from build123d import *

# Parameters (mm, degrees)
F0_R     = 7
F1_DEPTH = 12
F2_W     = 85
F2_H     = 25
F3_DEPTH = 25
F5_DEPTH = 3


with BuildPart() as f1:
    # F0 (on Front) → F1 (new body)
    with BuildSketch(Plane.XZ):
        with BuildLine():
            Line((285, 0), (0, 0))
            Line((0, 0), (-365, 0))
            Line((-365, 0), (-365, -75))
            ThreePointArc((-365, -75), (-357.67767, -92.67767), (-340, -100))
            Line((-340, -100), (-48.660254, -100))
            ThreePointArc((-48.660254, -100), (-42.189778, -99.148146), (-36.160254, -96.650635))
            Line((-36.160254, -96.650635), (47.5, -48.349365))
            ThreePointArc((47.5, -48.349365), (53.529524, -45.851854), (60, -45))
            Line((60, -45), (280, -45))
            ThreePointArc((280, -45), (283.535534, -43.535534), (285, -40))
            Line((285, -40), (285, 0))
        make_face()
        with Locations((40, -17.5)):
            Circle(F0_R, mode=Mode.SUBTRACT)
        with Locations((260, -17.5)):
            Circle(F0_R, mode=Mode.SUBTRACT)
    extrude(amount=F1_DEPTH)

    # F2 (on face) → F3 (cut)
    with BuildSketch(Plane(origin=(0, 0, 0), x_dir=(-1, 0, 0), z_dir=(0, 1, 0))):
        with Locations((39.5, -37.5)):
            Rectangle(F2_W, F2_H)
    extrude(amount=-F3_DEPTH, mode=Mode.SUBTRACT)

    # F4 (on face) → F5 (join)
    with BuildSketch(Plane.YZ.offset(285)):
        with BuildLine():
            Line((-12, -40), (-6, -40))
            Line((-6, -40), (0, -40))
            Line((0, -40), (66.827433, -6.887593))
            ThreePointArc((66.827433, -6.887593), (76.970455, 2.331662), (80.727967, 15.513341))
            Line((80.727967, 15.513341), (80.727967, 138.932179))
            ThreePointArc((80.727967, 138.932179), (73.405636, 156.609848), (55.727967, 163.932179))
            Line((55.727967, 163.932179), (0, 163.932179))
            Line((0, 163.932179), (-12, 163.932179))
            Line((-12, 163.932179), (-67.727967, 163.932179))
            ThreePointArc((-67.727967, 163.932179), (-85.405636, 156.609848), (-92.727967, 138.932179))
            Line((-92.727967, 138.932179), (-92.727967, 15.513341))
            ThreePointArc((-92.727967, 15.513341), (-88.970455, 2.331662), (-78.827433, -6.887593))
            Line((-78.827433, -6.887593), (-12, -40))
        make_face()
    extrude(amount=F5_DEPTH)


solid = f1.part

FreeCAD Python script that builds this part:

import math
import FreeCAD as App
import Part
import Sketcher
from FreeCAD import Vector
Q = App.Units.Quantity


def add_polygon(sketch, points):
    """Adds a closed chain of lines whose ends are joined by coincident constraints."""
    first, n = sketch.GeometryCount, len(points)
    for a, b in zip(points, points[1:] + points[:1]):
        sketch.addGeometry(Part.LineSegment(App.Vector(*a, 0), App.Vector(*b, 0)), False)
    for i in range(n):
        sketch.addConstraint(Sketcher.Constraint("Coincident", first + i, 2, first + (i + 1) % n, 1))

doc = App.newDocument("Part")
body = doc.addObject("PartDesign::Body", "Body")

sketch1 = body.newObject("Sketcher::SketchObject", "Sketch")
sketch1.AttachmentSupport = (doc.getObject("XZ_Plane"), [""])
sketch1.MapMode = "FlatFace"
sketch1.addGeometry([
    Part.LineSegment(Vector(285, 0, 0), Vector(-365, 0, 0)),
    Part.LineSegment(Vector(-365, 0, 0), Vector(-365, -75, 0)),
    Part.ArcOfCircle(Part.Circle(Vector(-340.000002, -75.000002, 0), Vector(0, 0, 1), 24.999998), math.radians(179.999996), math.radians(270.000004)),
    Part.LineSegment(Vector(-340, -100, 0), Vector(-48.660254, -100, 0)),
    Part.ArcOfCircle(Part.Circle(Vector(-48.660252, -75.00001, 0), Vector(0, 0, 1), 24.99999), math.radians(-90.000006), math.radians(-59.999994)),
    Part.LineSegment(Vector(-36.160254, -96.650635, 0), Vector(47.5, -48.349365, 0)),
    Part.ArcOfCircle(Part.Circle(Vector(59.999998, -69.99999, 0), Vector(0, 0, 1), 24.99999), math.radians(89.999994), math.radians(120.000006)),
    Part.LineSegment(Vector(60, -45, 0), Vector(280, -45, 0)),
    Part.ArcOfCircle(Part.Circle(Vector(280, -40, 0), Vector(0, 0, 1), 5), math.radians(-90.000004), math.radians(0.000004)),
    Part.LineSegment(Vector(285, -40, 0), Vector(285, 0, 0)),
    Part.Circle(Vector(40, -17.5, 0), Vector(0, 0, 1), 7),
    Part.Circle(Vector(260, -17.5, 0), Vector(0, 0, 1), 7),
], False)
sketch1.addConstraint([
    Sketcher.Constraint("Coincident", 0, 2, 1, 1),
    Sketcher.Constraint("Tangent", 1, 2, 2, 1),
    Sketcher.Constraint("Tangent", 2, 2, 3, 1),
    Sketcher.Constraint("Tangent", 3, 2, 4, 1),
    Sketcher.Constraint("Tangent", 4, 2, 5, 1),
    Sketcher.Constraint("Tangent", 5, 2, 6, 2),
    Sketcher.Constraint("Tangent", 6, 1, 7, 1),
    Sketcher.Constraint("Tangent", 7, 2, 8, 1),
    Sketcher.Constraint("Tangent", 8, 2, 9, 1),
    Sketcher.Constraint("Coincident", 9, 2, 0, 1),
    Sketcher.Constraint("Horizontal", 0),
    Sketcher.Constraint("Vertical", 1),
    Sketcher.Constraint("Horizontal", 3),
    Sketcher.Constraint("Horizontal", 7),
    Sketcher.Constraint("Vertical", 9),
    Sketcher.Constraint("Equal", 4, 6),
    Sketcher.Constraint("Equal", 10, 11),
    Sketcher.Constraint("PointOnObject", 0, 2, -1),
    Sketcher.Constraint("Horizontal", 10, 3, 11, 3),
    Sketcher.Constraint("Diameter", 10, 14.0),
    Sketcher.Constraint("Radius", 2, 24.999998),
    Sketcher.Constraint("Radius", 8, 5.0),
    Sketcher.Constraint("DistanceX", 0, 2, 0, 1, 650.0),
    Sketcher.Constraint("DistanceX", 7, 1, 7, 2, 220.0),
    Sketcher.Constraint("DistanceY", 1, 2, 1, 1, 75.0),
    Sketcher.Constraint("DistanceY", 9, 1, 9, 2, 40.0),
    Sketcher.Constraint("Angle", 5, Q("30 deg")),
    Sketcher.Constraint("DistanceX", 2, 3, -1, 1, 340.000002),
    Sketcher.Constraint("DistanceX", -1, 1, 10, 3, 40.0),
    Sketcher.Constraint("DistanceX", -1, 1, 11, 3, 260.0),
    Sketcher.Constraint("DistanceY", 10, 3, -1, 1, 17.5),
    Sketcher.Constraint("DistanceX", -1, 1, 5, 2, 47.5),
])
pad1 = body.newObject("PartDesign::Pad", "Pad")
pad1.Profile = sketch1
pad1.Length = 12

sketch2 = body.newObject("Sketcher::SketchObject", "Sketch001")
sketch2.AttachmentSupport = (doc.getObject("XZ_Plane"), [""])
sketch2.MapMode = "FlatFace"
add_polygon(sketch2, [(3, -25), (3, -50), (-82, -50), (-82, -25)])
sketch2.addConstraint([
    Sketcher.Constraint("Vertical", 0),
    Sketcher.Constraint("Horizontal", 1),
    Sketcher.Constraint("Vertical", 2),
    Sketcher.Constraint("Horizontal", 3),
    Sketcher.Constraint("DistanceX", 1, 2, 1, 1, 85.0),
    Sketcher.Constraint("DistanceY", 0, 2, 0, 1, 25.0),
    Sketcher.Constraint("DistanceX", -1, 1, 0, 2, 3.0),
    Sketcher.Constraint("DistanceY", 0, 2, -1, 1, 50.0),
])
pocket1 = body.newObject("PartDesign::Pocket", "Pocket")
pocket1.Profile = sketch2
pocket1.Length = 25
pocket1.Reversed = True

sketch3 = body.newObject("Sketcher::SketchObject", "Sketch002")
sketch3.AttachmentSupport = (doc.getObject("YZ_Plane"), [""])
sketch3.MapMode = "FlatFace"
sketch3.AttachmentOffset = App.Placement(Vector(0, 0, 285), App.Rotation())
sketch3.addGeometry([
    Part.LineSegment(Vector(-12, -40, 0), Vector(0, -40, 0)),
    Part.LineSegment(Vector(0, -40, 0), Vector(66.827433, -6.887593, 0)),
    Part.ArcOfCircle(Part.Circle(Vector(55.727963, 15.513344, 0), Vector(0, 0, 1), 25.000004), math.radians(-63.641983), math.radians(-0.000006)),
    Part.LineSegment(Vector(80.727967, 15.513341, 0), Vector(80.727967, 138.932179, 0)),
    Part.ArcOfCircle(Part.Circle(Vector(55.727965, 138.932177, 0), Vector(0, 0, 1), 25.000002), math.radians(0.000004), math.radians(89.999996)),
    Part.LineSegment(Vector(55.727967, 163.932179, 0), Vector(-67.727967, 163.932179, 0)),
    Part.ArcOfCircle(Part.Circle(Vector(-67.727965, 138.932177, 0), Vector(0, 0, 1), 25.000002), math.radians(90.000004), math.radians(179.999996)),
    Part.LineSegment(Vector(-92.727967, 138.932179, 0), Vector(-92.727967, 15.513341, 0)),
    Part.ArcOfCircle(Part.Circle(Vector(-67.727963, 15.513344, 0), Vector(0, 0, 1), 25.000004), math.radians(-179.999994), math.radians(-116.358017)),
    Part.LineSegment(Vector(-78.827433, -6.887593, 0), Vector(-12, -40, 0)),
], False)
sketch3.addConstraint([
    Sketcher.Constraint("Coincident", 0, 2, 1, 1),
    Sketcher.Constraint("Tangent", 1, 2, 2, 1),
    Sketcher.Constraint("Tangent", 2, 2, 3, 1),
    Sketcher.Constraint("Tangent", 3, 2, 4, 1),
    Sketcher.Constraint("Tangent", 4, 2, 5, 1),
    Sketcher.Constraint("Tangent", 5, 2, 6, 1),
    Sketcher.Constraint("Tangent", 6, 2, 7, 1),
    Sketcher.Constraint("Tangent", 7, 2, 8, 1),
    Sketcher.Constraint("Tangent", 8, 2, 9, 1),
    Sketcher.Constraint("Coincident", 9, 2, 0, 1),
    Sketcher.Constraint("Horizontal", 0),
    Sketcher.Constraint("Vertical", 3),
    Sketcher.Constraint("Horizontal", 5),
    Sketcher.Constraint("Vertical", 7),
    Sketcher.Constraint("Equal", 4, 6),
    Sketcher.Constraint("Equal", 2, 8),
    Sketcher.Constraint("PointOnObject", 0, 2, -2),
    Sketcher.Constraint("Horizontal", 2, 3, 8, 3),
    Sketcher.Constraint("Horizontal", 1, 2, 8, 2),
    Sketcher.Constraint("Radius", 4, 25.000002),
    Sketcher.Constraint("DistanceX", 0, 1, 0, 2, 12.0),
    Sketcher.Constraint("DistanceY", 0, 2, -1, 1, 40.0),
    Sketcher.Constraint("Radius", 2, 25.000004),
    Sketcher.Constraint("DistanceX", 6, 3, 1, 2, 134.555398),
    Sketcher.Constraint("Distance", 1, 74.581079),
    Sketcher.Constraint("DistanceY", 3, 1, 3, 2, 123.418838),
])
pad2 = body.newObject("PartDesign::Pad", "Pad001")
pad2.Profile = sketch3
pad2.Length = 3

doc.recompute()
